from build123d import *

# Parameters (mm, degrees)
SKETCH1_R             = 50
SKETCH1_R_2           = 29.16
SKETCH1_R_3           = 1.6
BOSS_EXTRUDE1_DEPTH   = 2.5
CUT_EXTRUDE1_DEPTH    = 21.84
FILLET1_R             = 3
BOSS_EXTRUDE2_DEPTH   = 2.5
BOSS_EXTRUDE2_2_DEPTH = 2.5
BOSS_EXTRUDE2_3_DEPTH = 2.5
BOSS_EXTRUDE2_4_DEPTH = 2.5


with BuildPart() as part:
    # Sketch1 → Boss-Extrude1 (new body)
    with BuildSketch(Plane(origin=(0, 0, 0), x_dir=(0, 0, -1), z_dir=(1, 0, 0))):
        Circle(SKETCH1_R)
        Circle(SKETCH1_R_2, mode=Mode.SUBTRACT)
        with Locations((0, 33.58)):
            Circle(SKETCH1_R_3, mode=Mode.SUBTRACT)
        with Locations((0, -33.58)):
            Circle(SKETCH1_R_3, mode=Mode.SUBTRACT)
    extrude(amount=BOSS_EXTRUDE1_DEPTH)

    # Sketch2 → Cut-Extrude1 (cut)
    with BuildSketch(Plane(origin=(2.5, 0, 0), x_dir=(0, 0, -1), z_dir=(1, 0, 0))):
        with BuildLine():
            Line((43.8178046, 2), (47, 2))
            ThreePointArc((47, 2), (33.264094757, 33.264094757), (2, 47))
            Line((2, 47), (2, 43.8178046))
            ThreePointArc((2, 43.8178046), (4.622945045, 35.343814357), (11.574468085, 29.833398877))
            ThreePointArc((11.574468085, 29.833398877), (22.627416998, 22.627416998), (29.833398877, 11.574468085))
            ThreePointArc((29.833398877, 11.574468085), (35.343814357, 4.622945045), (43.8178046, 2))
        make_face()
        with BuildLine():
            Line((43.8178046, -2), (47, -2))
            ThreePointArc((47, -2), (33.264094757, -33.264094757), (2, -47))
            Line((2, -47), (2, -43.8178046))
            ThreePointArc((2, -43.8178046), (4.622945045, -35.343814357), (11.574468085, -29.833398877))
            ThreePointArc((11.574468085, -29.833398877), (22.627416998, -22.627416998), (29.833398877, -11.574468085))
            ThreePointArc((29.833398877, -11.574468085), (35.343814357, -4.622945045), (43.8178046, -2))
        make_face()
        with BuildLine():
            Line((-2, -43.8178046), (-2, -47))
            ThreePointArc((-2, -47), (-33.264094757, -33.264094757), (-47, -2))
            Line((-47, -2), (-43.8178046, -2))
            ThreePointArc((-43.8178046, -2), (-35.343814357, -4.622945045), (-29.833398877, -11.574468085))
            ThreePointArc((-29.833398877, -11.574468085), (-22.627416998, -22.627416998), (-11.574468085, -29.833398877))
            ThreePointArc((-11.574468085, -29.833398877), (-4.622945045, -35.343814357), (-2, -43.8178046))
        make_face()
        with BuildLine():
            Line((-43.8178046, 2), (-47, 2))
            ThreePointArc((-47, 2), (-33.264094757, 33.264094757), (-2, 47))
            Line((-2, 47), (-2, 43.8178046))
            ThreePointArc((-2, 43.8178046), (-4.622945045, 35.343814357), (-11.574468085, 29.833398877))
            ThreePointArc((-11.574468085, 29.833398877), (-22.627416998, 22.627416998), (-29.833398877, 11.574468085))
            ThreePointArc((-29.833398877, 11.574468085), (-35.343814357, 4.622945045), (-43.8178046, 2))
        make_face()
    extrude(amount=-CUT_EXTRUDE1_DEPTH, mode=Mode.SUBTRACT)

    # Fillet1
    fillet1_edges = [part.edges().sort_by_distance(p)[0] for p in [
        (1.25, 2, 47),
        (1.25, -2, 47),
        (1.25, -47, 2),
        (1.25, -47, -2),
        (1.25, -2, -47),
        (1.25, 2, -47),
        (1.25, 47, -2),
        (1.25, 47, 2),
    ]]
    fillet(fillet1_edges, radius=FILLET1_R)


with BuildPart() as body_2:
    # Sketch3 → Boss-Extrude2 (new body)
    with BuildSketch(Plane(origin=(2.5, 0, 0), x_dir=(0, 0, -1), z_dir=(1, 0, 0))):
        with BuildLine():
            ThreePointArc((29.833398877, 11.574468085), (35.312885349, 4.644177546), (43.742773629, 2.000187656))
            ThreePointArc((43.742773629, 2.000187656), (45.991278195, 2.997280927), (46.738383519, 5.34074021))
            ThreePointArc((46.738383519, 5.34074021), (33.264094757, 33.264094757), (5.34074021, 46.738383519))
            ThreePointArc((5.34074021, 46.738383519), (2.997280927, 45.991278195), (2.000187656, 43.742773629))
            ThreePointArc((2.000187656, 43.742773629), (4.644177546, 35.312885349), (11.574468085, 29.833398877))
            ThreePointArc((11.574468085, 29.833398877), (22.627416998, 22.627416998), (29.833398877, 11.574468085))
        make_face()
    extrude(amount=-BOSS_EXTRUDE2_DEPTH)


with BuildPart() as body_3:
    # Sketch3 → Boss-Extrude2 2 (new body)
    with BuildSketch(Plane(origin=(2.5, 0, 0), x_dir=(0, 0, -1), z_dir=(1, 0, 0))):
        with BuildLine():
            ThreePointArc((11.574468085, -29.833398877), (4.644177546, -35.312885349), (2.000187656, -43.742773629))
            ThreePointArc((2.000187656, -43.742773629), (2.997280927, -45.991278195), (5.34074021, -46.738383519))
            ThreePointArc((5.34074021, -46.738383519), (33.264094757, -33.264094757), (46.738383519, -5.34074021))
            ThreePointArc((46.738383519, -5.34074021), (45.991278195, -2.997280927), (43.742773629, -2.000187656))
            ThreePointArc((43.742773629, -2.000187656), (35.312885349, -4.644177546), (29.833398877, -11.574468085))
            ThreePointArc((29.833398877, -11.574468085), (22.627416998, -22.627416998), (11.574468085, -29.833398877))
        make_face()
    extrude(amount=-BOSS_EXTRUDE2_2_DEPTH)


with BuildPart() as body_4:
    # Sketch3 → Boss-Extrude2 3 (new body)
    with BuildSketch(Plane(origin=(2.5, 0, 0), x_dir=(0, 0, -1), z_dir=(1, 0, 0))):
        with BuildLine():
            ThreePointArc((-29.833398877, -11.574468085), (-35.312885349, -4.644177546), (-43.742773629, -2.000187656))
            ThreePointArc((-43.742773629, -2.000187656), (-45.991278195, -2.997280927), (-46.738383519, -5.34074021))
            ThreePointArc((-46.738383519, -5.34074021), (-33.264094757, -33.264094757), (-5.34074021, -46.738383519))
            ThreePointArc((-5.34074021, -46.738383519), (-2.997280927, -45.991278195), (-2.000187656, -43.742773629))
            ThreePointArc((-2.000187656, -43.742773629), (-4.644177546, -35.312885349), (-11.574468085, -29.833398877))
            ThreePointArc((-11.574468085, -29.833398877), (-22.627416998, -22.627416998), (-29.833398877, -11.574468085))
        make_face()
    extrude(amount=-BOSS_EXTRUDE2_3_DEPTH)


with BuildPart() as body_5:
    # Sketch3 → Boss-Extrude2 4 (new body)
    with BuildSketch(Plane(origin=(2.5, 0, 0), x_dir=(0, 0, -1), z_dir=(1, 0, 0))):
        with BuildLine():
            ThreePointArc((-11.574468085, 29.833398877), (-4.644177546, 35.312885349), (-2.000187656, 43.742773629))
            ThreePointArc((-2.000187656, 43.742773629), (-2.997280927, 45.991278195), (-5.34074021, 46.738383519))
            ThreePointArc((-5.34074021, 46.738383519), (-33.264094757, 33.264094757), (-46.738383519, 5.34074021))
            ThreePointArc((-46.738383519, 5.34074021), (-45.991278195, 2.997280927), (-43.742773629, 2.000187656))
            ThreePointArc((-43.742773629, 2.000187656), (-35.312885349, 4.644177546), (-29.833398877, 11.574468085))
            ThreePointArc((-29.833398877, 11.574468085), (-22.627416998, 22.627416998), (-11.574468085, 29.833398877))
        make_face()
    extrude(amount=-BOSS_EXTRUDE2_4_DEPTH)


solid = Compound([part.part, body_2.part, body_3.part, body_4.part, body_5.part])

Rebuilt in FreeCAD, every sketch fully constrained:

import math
import FreeCAD as App
import Part
import Sketcher
Q = App.Units.Quantity


def edges_at(feature, points):
    """Names of the edges that pass closest to the given points."""
    edges = feature.Shape.Edges
    near = lambda p: min(range(len(edges)), key=lambda i: edges[i].distToShape(Part.Vertex(*p))[0])
    return sorted({f"Edge{near(p) + 1}" for p in points})

doc = App.newDocument("Part")
params = doc.addObject("Spreadsheet::Sheet", "Params")
for row, (alias, value) in enumerate([
    ("sketch1_diameter", "100 mm"),
    ("sketch1_diameter2", "3.2 mm"),
    ("sketch1_diameter3", "58.32 mm"),
    ("pad1_length", "2.5 mm"),
    ("sketch2_radius", "15 mm"),
    ("sketch2_radius2", "32 mm"),
    ("pocket1_length", "21.84 mm"),
    ("fillet_radius", "3 mm"),
    ("sketch3_radius", "15 mm"),
    ("sketch3_radius2", "3 mm"),
    ("sketch3_radius3", "32 mm"),
    ("pad2_length", "2.5 mm"),
    ("sketch4_radius", "15 mm"),
    ("sketch4_radius2", "3 mm"),
    ("sketch4_radius3", "32 mm"),
    ("pad3_length", "2.5 mm"),
    ("sketch5_radius", "15 mm"),
    ("sketch5_radius2", "3 mm"),
    ("sketch5_radius3", "32 mm"),
    ("pad4_length", "2.5 mm"),
    ("sketch6_radius", "15 mm"),
    ("sketch6_radius2", "3 mm"),
    ("sketch6_radius3", "32 mm"),
    ("pad5_length", "2.5 mm"),
], start=1):
    params.set(f"A{row}", alias)
    params.set(f"B{row}", "=" + value)
    params.setAlias(f"B{row}", alias)

body = doc.addObject("PartDesign::Body", "Body")

# Sketch on YZ plane
sketch1 = body.newObject("Sketcher::SketchObject", "Sketch")
sketch1.AttachmentSupport = (doc.getObject("YZ_Plane"), [""])
sketch1.MapMode = "FlatFace"
sketch1.addGeometry([
    Part.Circle(App.Vector(0, 0, 0), App.Vector(0, 0, 1), 50),
    Part.Circle(App.Vector(-33.58, 0, 0), App.Vector(0, 0, 1), 1.6),
    Part.Circle(App.Vector(0, 0, 0), App.Vector(0, 0, 1), 29.16),
    Part.Circle(App.Vector(33.58, 0, 0), App.Vector(0, 0, 1), 1.6),
], False)
sketch1.addConstraint([
    Sketcher.Constraint("Coincident", 0, 3, -1, 1),
    Sketcher.Constraint("Coincident", 2, 3, -1, 1),
    Sketcher.Constraint("Equal", 1, 3),
    Sketcher.Constraint("Symmetric", 1, 3, 3, 3, -1, 1),
    Sketcher.Constraint("PointOnObject", 1, 3, -1),
    Sketcher.Constraint("Diameter", 0, Q("100 mm")),
    Sketcher.Constraint("Diameter", 1, Q("3.2 mm")),
    Sketcher.Constraint("Diameter", 2, Q("58.32 mm")),
    Sketcher.Constraint("DistanceX", 1, 3, -1, 1, Q("33.58 mm")),
])
sketch1.setExpression("Constraints[5]", "Params.sketch1_diameter")
sketch1.setExpression("Constraints[6]", "Params.sketch1_diameter2")
sketch1.setExpression("Constraints[7]", "Params.sketch1_diameter3")
pad1 = body.newObject("PartDesign::Pad", "Pad")
pad1.Profile = sketch1
pad1.setExpression("Length", "Params.pad1_length")

# Sketch on YZ plane
sketch2 = body.newObject("Sketcher::SketchObject", "Sketch001")
sketch2.AttachmentSupport = (doc.getObject("YZ_Plane"), [""])
sketch2.MapMode = "FlatFace"
sketch2.AttachmentOffset = App.Placement(App.Vector(0, 0, 2.5), App.Rotation())
sketch2.addGeometry([
    Part.LineSegment(App.Vector(2, -43.817805, 0), App.Vector(2, -47, 0)),  # 0
    Part.ArcOfCircle(Part.Circle(App.Vector(0, 0, 0), App.Vector(0, 0, 1), 47.042534), math.radians(-87.563352), math.radians(-2.436648)),  # 1
    Part.LineSegment(App.Vector(47, -2, 0), App.Vector(43.817805, -2, 0)),  # 2
    Part.ArcOfCircle(Part.Circle(App.Vector(43.817805, -17, 0), App.Vector(0, 0, 1), 15), math.radians(90), math.radians(158.795234)),  # 3
    Part.ArcOfCircle(Part.Circle(App.Vector(0, 0, 0), App.Vector(0, 0, 1), 32), math.radians(-68.795234), math.radians(-21.204766)),  # 4
    Part.ArcOfCircle(Part.Circle(App.Vector(17, -43.817805, 0), App.Vector(0, 0, 1), 15), math.radians(111.204766), math.radians(180)),  # 5
    Part.LineSegment(App.Vector(-2, -47, 0), App.Vector(-2, -43.817805, 0)),  # 6
    Part.ArcOfCircle(Part.Circle(App.Vector(-17, -43.817805, 0), App.Vector(0, 0, 1), 15), math.radians(0), math.radians(68.795234)),  # 7
    Part.ArcOfCircle(Part.Circle(App.Vector(0, 0, 0), App.Vector(0, 0, 1), 32), math.radians(-158.795234), math.radians(-111.204766)),  # 8
    Part.ArcOfCircle(Part.Circle(App.Vector(-43.817805, -17, 0), App.Vector(0, 0, 1), 15), math.radians(21.204766), math.radians(90)),  # 9
    Part.LineSegment(App.Vector(-43.817805, -2, 0), App.Vector(-47, -2, 0)),  # 10
    Part.ArcOfCircle(Part.Circle(App.Vector(0, 0, 0), App.Vector(0, 0, 1), 47.042534), math.radians(-177.563352), math.radians(-92.436648)),  # 11
    Part.LineSegment(App.Vector(-47, 2, 0), App.Vector(-43.817805, 2, 0)),  # 12
    Part.ArcOfCircle(Part.Circle(App.Vector(-43.817805, 17, 0), App.Vector(0, 0, 1), 15), math.radians(-90), math.radians(-21.204766)),  # 13
    Part.ArcOfCircle(Part.Circle(App.Vector(0, 0, 0), App.Vector(0, 0, 1), 32), math.radians(111.204766), math.radians(158.795234)),  # 14
    Part.ArcOfCircle(Part.Circle(App.Vector(-17, 43.817805, 0), App.Vector(0, 0, 1), 15), math.radians(-68.795234), math.radians(0)),  # 15
    Part.LineSegment(App.Vector(-2, 43.817805, 0), App.Vector(-2, 47, 0)),  # 16
    Part.ArcOfCircle(Part.Circle(App.Vector(0, 0, 0), App.Vector(0, 0, 1), 47.042534), math.radians(92.436648), math.radians(177.563352)),  # 17
    Part.LineSegment(App.Vector(2, 47, 0), App.Vector(2, 43.817805, 0)),  # 18
    Part.ArcOfCircle(Part.Circle(App.Vector(17, 43.817805, 0), App.Vector(0, 0, 1), 15), math.radians(180), math.radians(248.795234)),  # 19
    Part.ArcOfCircle(Part.Circle(App.Vector(0, 0, 0), App.Vector(0, 0, 1), 32), math.radians(21.204766), math.radians(68.795234)),  # 20
    Part.ArcOfCircle(Part.Circle(App.Vector(43.817805, 17, 0), App.Vector(0, 0, 1), 15), math.radians(-158.795234), math.radians(-90)),  # 21
    Part.LineSegment(App.Vector(43.817805, 2, 0), App.Vector(47, 2, 0)),  # 22
    Part.ArcOfCircle(Part.Circle(App.Vector(0, 0, 0), App.Vector(0, 0, 1), 47.042534), math.radians(2.436648), math.radians(87.563352)),  # 23
], False)
sketch2.addConstraint([
    Sketcher.Constraint("Coincident", 0, 2, 1, 1),
    Sketcher.Constraint("Coincident", 1, 2, 2, 1),
    Sketcher.Constraint("Tangent", 2, 2, 3, 1),
    Sketcher.Constraint("Tangent", 3, 2, 4, 2),
    Sketcher.Constraint("Tangent", 4, 1, 5, 1),
    Sketcher.Constraint("Tangent", 5, 2, 0, 1),
    Sketcher.Constraint("Tangent", 6, 2, 7, 1),
    Sketcher.Constraint("Tangent", 7, 2, 8, 2),
    Sketcher.Constraint("Tangent", 8, 1, 9, 1),
    Sketcher.Constraint("Tangent", 9, 2, 10, 1),
    Sketcher.Constraint("Coincident", 10, 2, 11, 1),
    Sketcher.Constraint("Coincident", 11, 2, 6, 1),
    Sketcher.Constraint("Tangent", 12, 2, 13, 1),
    Sketcher.Constraint("Tangent", 13, 2, 14, 2),
    Sketcher.Constraint("Tangent", 14, 1, 15, 1),
    Sketcher.Constraint("Tangent", 15, 2, 16, 1),
    Sketcher.Constraint("Coincident", 16, 2, 17, 1),
    Sketcher.Constraint("Coincident", 17, 2, 12, 1),
    Sketcher.Constraint("Tangent", 18, 2, 19, 1),
    Sketcher.Constraint("Tangent", 19, 2, 20, 2),
    Sketcher.Constraint("Tangent", 20, 1, 21, 1),
    Sketcher.Constraint("Tangent", 21, 2, 22, 1),
    Sketcher.Constraint("Coincident", 22, 2, 23, 1),
    Sketcher.Constraint("Coincident", 23, 2, 18, 1),
    Sketcher.Constraint("Vertical", 0),
    Sketcher.Constraint("Horizontal", 2),
    Sketcher.Constraint("Vertical", 6),
    Sketcher.Constraint("Horizontal", 10),
    Sketcher.Constraint("Horizontal", 12),
    Sketcher.Constraint("Vertical", 16),
    Sketcher.Constraint("Vertical", 18),
    Sketcher.Constraint("Horizontal", 22),
    Sketcher.Constraint("Coincident", 1, 3, -1, 1),
    Sketcher.Constraint("Coincident", 4, 3, -1, 1),
    Sketcher.Constraint("Coincident", 8, 3, -1, 1),
    Sketcher.Constraint("Coincident", 11, 3, -1, 1),
    Sketcher.Constraint("Coincident", 14, 3, -1, 1),
    Sketcher.Constraint("Coincident", 17, 3, -1, 1),
    Sketcher.Constraint("Coincident", 20, 3, -1, 1),
    Sketcher.Constraint("Coincident", 23, 3, -1, 1),
    Sketcher.Constraint("Equal", 3, 5),
    Sketcher.Constraint("Equal", 5, 7),
    Sketcher.Constraint("Equal", 4, 8),
    Sketcher.Constraint("Equal", 7, 9),
    Sketcher.Constraint("Equal", 1, 11),
    Sketcher.Constraint("Equal", 9, 13),
    Sketcher.Constraint("Equal", 8, 14),
    Sketcher.Constraint("Equal", 13, 15),
    Sketcher.Constraint("Equal", 11, 17),
    Sketcher.Constraint("Equal", 15, 19),
    Sketcher.Constraint("Equal", 14, 20),
    Sketcher.Constraint("Equal", 19, 21),
    Sketcher.Constraint("Equal", 17, 23),
    Sketcher.Constraint("Horizontal", 5, 3, 7, 3),
    Sketcher.Constraint("Horizontal", 3, 3, 9, 3),
    Sketcher.Constraint("Horizontal", 15, 3, 19, 3),
    Sketcher.Constraint("Horizontal", 13, 3, 21, 3),
    Sketcher.Constraint("Vertical", 9, 3, 13, 3),
    Sketcher.Constraint("Vertical", 7, 3, 15, 3),
    Sketcher.Constraint("Equal", 22, 0),
    Sketcher.Constraint("Radius", 3, Q("15 mm")),
    Sketcher.Constraint("Radius", 4, Q("32 mm")),
    Sketcher.Constraint("DistanceY", 3, 3, -1, 1, Q("17 mm")),
    Sketcher.Constraint("DistanceY", 0, 2, -1, 1, Q("47 mm")),
])
sketch2.setExpression("Constraints[60]", "Params.sketch2_radius")
sketch2.setExpression("Constraints[61]", "Params.sketch2_radius2")
pocket1 = body.newObject("PartDesign::Pocket", "Pocket")
pocket1.Profile = sketch2
pocket1.setExpression("Length", "Params.pocket1_length")
doc.recompute()

fillet = body.newObject("PartDesign::Fillet", "Fillet")
fillet.Base = (pocket1, edges_at(pocket1, [
    (1.25, 2, 47),
    (1.25, -2, 47),
    (1.25, -47, 2),
    (1.25, -47, -2),
    (1.25, -2, -47),
    (1.25, 2, -47),
    (1.25, 47, -2),
    (1.25, 47, 2),
]))
fillet.setExpression("Radius", "Params.fillet_radius")
body2 = doc.addObject("PartDesign::Body", "Body001")

# Sketch on YZ plane
sketch3 = body2.newObject("Sketcher::SketchObject", "Sketch002")
sketch3.AttachmentSupport = (doc.getObject("YZ_Plane001"), [""])
sketch3.MapMode = "FlatFace"
sketch3.AttachmentOffset = App.Placement(App.Vector(0, 0, 2.5), App.Rotation())
sketch3.addGeometry([
    Part.ArcOfCircle(Part.Circle(App.Vector(17, -43.817805, 0), App.Vector(0, 0, 1), 15), math.radians(111.204766), math.radians(179.713402)),  # 0
    Part.ArcOfCircle(Part.Circle(App.Vector(5.00015, -43.75778, 0), App.Vector(0, 0, 1), 3), math.radians(179.713402), math.radians(276.518847)),  # 1
    Part.ArcOfCircle(Part.Circle(App.Vector(0, 0, 0), App.Vector(0, 0, 1), 47.042534), math.radians(-83.481153), math.radians(-6.518847)),  # 2
    Part.ArcOfCircle(Part.Circle(App.Vector(43.75778, -5.00015, 0), App.Vector(0, 0, 1), 3), math.radians(-6.518847), math.radians(90.286598)),  # 3
    Part.ArcOfCircle(Part.Circle(App.Vector(43.817805, -17, 0), App.Vector(0, 0, 1), 15), math.radians(90.286598), math.radians(158.795234)),  # 4
    Part.ArcOfCircle(Part.Circle(App.Vector(0, 0, 0), App.Vector(0, 0, 1), 32), math.radians(-68.795234), math.radians(-21.204766)),  # 5
], False)
sketch3.addConstraint([
    Sketcher.Constraint("Tangent", 0, 2, 1, 1),
    Sketcher.Constraint("Tangent", 1, 2, 2, 1),
    Sketcher.Constraint("Tangent", 2, 2, 3, 1),
    Sketcher.Constraint("Tangent", 3, 2, 4, 1),
    Sketcher.Constraint("Tangent", 4, 2, 5, 2),
    Sketcher.Constraint("Tangent", 5, 1, 0, 1),
    Sketcher.Constraint("Coincident", 2, 3, -1, 1),
    Sketcher.Constraint("Coincident", 5, 3, -1, 1),
    Sketcher.Constraint("Equal", 1, 3),
    Sketcher.Constraint("Equal", 0, 4),
    Sketcher.Constraint("Radius", 0, Q("15 mm")),
    Sketcher.Constraint("Radius", 1, Q("3 mm")),
    Sketcher.Constraint("Radius", 5, Q("32 mm")),
    Sketcher.Constraint("DistanceX", -1, 1, 0, 3, Q("17 mm")),
    Sketcher.Constraint("DistanceY", 4, 3, -1, 1, Q("17 mm")),
    Sketcher.Constraint("Radius", 2, Q("47.042534 mm")),
])
sketch3.setExpression("Constraints[10]", "Params.sketch3_radius")
sketch3.setExpression("Constraints[11]", "Params.sketch3_radius2")
sketch3.setExpression("Constraints[12]", "Params.sketch3_radius3")
pad2 = body2.newObject("PartDesign::Pad", "Pad001")
pad2.Profile = sketch3
pad2.setExpression("Length", "Params.pad2_length")
pad2.Reversed = True
body3 = doc.addObject("PartDesign::Body", "Body002")

# Sketch on YZ plane
sketch4 = body3.newObject("Sketcher::SketchObject", "Sketch003")
sketch4.AttachmentSupport = (doc.getObject("YZ_Plane002"), [""])
sketch4.MapMode = "FlatFace"
sketch4.AttachmentOffset = App.Placement(App.Vector(0, 0, 2.5), App.Rotation())
sketch4.addGeometry([
    Part.ArcOfCircle(Part.Circle(App.Vector(-43.817805, -17, 0), App.Vector(0, 0, 1), 15), math.radians(21.204766), math.radians(89.713402)),  # 0
    Part.ArcOfCircle(Part.Circle(App.Vector(-43.75778, -5.00015, 0), App.Vector(0, 0, 1), 3), math.radians(89.713402), math.radians(186.518847)),  # 1
    Part.ArcOfCircle(Part.Circle(App.Vector(0, 0, 0), App.Vector(0, 0, 1), 47.042534), math.radians(-173.481153), math.radians(-96.518847)),  # 2
    Part.ArcOfCircle(Part.Circle(App.Vector(-5.00015, -43.75778, 0), App.Vector(0, 0, 1), 3), math.radians(-96.518847), math.radians(0.286598)),  # 3
    Part.ArcOfCircle(Part.Circle(App.Vector(-17, -43.817805, 0), App.Vector(0, 0, 1), 15), math.radians(0.286598), math.radians(68.795234)),  # 4
    Part.ArcOfCircle(Part.Circle(App.Vector(0, 0, 0), App.Vector(0, 0, 1), 32), math.radians(-158.795234), math.radians(-111.204766)),  # 5
], False)
sketch4.addConstraint([
    Sketcher.Constraint("Tangent", 0, 2, 1, 1),
    Sketcher.Constraint("Tangent", 1, 2, 2, 1),
    Sketcher.Constraint("Tangent", 2, 2, 3, 1),
    Sketcher.Constraint("Tangent", 3, 2, 4, 1),
    Sketcher.Constraint("Tangent", 4, 2, 5, 2),
    Sketcher.Constraint("Tangent", 5, 1, 0, 1),
    Sketcher.Constraint("Coincident", 2, 3, -1, 1),
    Sketcher.Constraint("Coincident", 5, 3, -1, 1),
    Sketcher.Constraint("Equal", 1, 3),
    Sketcher.Constraint("Equal", 0, 4),
    Sketcher.Constraint("Radius", 0, Q("15 mm")),
    Sketcher.Constraint("Radius", 1, Q("3 mm")),
    Sketcher.Constraint("Radius", 5, Q("32 mm")),
    Sketcher.Constraint("DistanceY", 0, 3, -1, 1, Q("17 mm")),
    Sketcher.Constraint("DistanceX", 4, 3, -1, 1, Q("17 mm")),
    Sketcher.Constraint("Radius", 2, Q("47.042534 mm")),
])
sketch4.setExpression("Constraints[10]", "Params.sketch4_radius")
sketch4.setExpression("Constraints[11]", "Params.sketch4_radius2")
sketch4.setExpression("Constraints[12]", "Params.sketch4_radius3")
pad3 = body3.newObject("PartDesign::Pad", "Pad002")
pad3.Profile = sketch4
pad3.setExpression("Length", "Params.pad3_length")
pad3.Reversed = True
body4 = doc.addObject("PartDesign::Body", "Body003")

# Sketch on YZ plane
sketch5 = body4.newObject("Sketcher::SketchObject", "Sketch004")
sketch5.AttachmentSupport = (doc.getObject("YZ_Plane003"), [""])
sketch5.MapMode = "FlatFace"
sketch5.AttachmentOffset = App.Placement(App.Vector(0, 0, 2.5), App.Rotation())
sketch5.addGeometry([
    Part.ArcOfCircle(Part.Circle(App.Vector(-17, 43.817805, 0), App.Vector(0, 0, 1), 15), math.radians(-68.795234), math.radians(-0.286598)),  # 0
    Part.ArcOfCircle(Part.Circle(App.Vector(-5.00015, 43.75778, 0), App.Vector(0, 0, 1), 3), math.radians(-0.286598), math.radians(96.518847)),  # 1
    Part.ArcOfCircle(Part.Circle(App.Vector(0, 0, 0), App.Vector(0, 0, 1), 47.042534), math.radians(96.518847), math.radians(173.481153)),  # 2
    Part.ArcOfCircle(Part.Circle(App.Vector(-43.75778, 5.00015, 0), App.Vector(0, 0, 1), 3), math.radians(173.481153), math.radians(270.286598)),  # 3
    Part.ArcOfCircle(Part.Circle(App.Vector(-43.817805, 17, 0), App.Vector(0, 0, 1), 15), math.radians(-89.713402), math.radians(-21.204766)),  # 4
    Part.ArcOfCircle(Part.Circle(App.Vector(0, 0, 0), App.Vector(0, 0, 1), 32), math.radians(111.204766), math.radians(158.795234)),  # 5
], False)
sketch5.addConstraint([
    Sketcher.Constraint("Tangent", 0, 2, 1, 1),
    Sketcher.Constraint("Tangent", 1, 2, 2, 1),
    Sketcher.Constraint("Tangent", 2, 2, 3, 1),
    Sketcher.Constraint("Tangent", 3, 2, 4, 1),
    Sketcher.Constraint("Tangent", 4, 2, 5, 2),
    Sketcher.Constraint("Tangent", 5, 1, 0, 1),
    Sketcher.Constraint("Coincident", 2, 3, -1, 1),
    Sketcher.Constraint("Coincident", 5, 3, -1, 1),
    Sketcher.Constraint("Equal", 1, 3),
    Sketcher.Constraint("Equal", 0, 4),
    Sketcher.Constraint("Radius", 0, Q("15 mm")),
    Sketcher.Constraint("Radius", 1, Q("3 mm")),
    Sketcher.Constraint("Radius", 5, Q("32 mm")),
    Sketcher.Constraint("DistanceX", 0, 3, -1, 1, Q("17 mm")),
    Sketcher.Constraint("DistanceY", -1, 1, 4, 3, Q("17 mm")),
    Sketcher.Constraint("Radius", 2, Q("47.042534 mm")),
])
sketch5.setExpression("Constraints[10]", "Params.sketch5_radius")
sketch5.setExpression("Constraints[11]", "Params.sketch5_radius2")
sketch5.setExpression("Constraints[12]", "Params.sketch5_radius3")
pad4 = body4.newObject("PartDesign::Pad", "Pad003")
pad4.Profile = sketch5
pad4.setExpression("Length", "Params.pad4_length")
pad4.Reversed = True
body5 = doc.addObject("PartDesign::Body", "Body004")

# Sketch on YZ plane
sketch6 = body5.newObject("Sketcher::SketchObject", "Sketch005")
sketch6.AttachmentSupport = (doc.getObject("YZ_Plane004"), [""])
sketch6.MapMode = "FlatFace"
sketch6.AttachmentOffset = App.Placement(App.Vector(0, 0, 2.5), App.Rotation())
sketch6.addGeometry([
    Part.ArcOfCircle(Part.Circle(App.Vector(43.817805, 17, 0), App.Vector(0, 0, 1), 15), math.radians(-158.795234), math.radians(-90.286598)),  # 0
    Part.ArcOfCircle(Part.Circle(App.Vector(43.75778, 5.00015, 0), App.Vector(0, 0, 1), 3), math.radians(-90.286598), math.radians(6.518847)),  # 1
    Part.ArcOfCircle(Part.Circle(App.Vector(0, 0, 0), App.Vector(0, 0, 1), 47.042534), math.radians(6.518847), math.radians(83.481153)),  # 2
    Part.ArcOfCircle(Part.Circle(App.Vector(5.00015, 43.75778, 0), App.Vector(0, 0, 1), 3), math.radians(83.481153), math.radians(180.286598)),  # 3
    Part.ArcOfCircle(Part.Circle(App.Vector(17, 43.817805, 0), App.Vector(0, 0, 1), 15), math.radians(-179.713402), math.radians(-111.204766)),  # 4
    Part.ArcOfCircle(Part.Circle(App.Vector(0, 0, 0), App.Vector(0, 0, 1), 32), math.radians(21.204766), math.radians(68.795234)),  # 5
], False)
sketch6.addConstraint([
    Sketcher.Constraint("Tangent", 0, 2, 1, 1),
    Sketcher.Constraint("Tangent", 1, 2, 2, 1),
    Sketcher.Constraint("Tangent", 2, 2, 3, 1),
    Sketcher.Constraint("Tangent", 3, 2, 4, 1),
    Sketcher.Constraint("Tangent", 4, 2, 5, 2),
    Sketcher.Constraint("Tangent", 5, 1, 0, 1),
    Sketcher.Constraint("Coincident", 2, 3, -1, 1),
    Sketcher.Constraint("Coincident", 5, 3, -1, 1),
    Sketcher.Constraint("Equal", 1, 3),
    Sketcher.Constraint("Equal", 0, 4),
    Sketcher.Constraint("Radius", 0, Q("15 mm")),
    Sketcher.Constraint("Radius", 1, Q("3 mm")),
    Sketcher.Constraint("Radius", 5, Q("32 mm")),
    Sketcher.Constraint("DistanceY", -1, 1, 0, 3, Q("17 mm")),
    Sketcher.Constraint("DistanceX", -1, 1, 4, 3, Q("17 mm")),
    Sketcher.Constraint("Radius", 2, Q("47.042534 mm")),
])
sketch6.setExpression("Constraints[10]", "Params.sketch6_radius")
sketch6.setExpression("Constraints[11]", "Params.sketch6_radius2")
sketch6.setExpression("Constraints[12]", "Params.sketch6_radius3")
pad5 = body5.newObject("PartDesign::Pad", "Pad004")
pad5.Profile = sketch6
pad5.setExpression("Length", "Params.pad5_length")
pad5.Reversed = True

doc.recompute()
